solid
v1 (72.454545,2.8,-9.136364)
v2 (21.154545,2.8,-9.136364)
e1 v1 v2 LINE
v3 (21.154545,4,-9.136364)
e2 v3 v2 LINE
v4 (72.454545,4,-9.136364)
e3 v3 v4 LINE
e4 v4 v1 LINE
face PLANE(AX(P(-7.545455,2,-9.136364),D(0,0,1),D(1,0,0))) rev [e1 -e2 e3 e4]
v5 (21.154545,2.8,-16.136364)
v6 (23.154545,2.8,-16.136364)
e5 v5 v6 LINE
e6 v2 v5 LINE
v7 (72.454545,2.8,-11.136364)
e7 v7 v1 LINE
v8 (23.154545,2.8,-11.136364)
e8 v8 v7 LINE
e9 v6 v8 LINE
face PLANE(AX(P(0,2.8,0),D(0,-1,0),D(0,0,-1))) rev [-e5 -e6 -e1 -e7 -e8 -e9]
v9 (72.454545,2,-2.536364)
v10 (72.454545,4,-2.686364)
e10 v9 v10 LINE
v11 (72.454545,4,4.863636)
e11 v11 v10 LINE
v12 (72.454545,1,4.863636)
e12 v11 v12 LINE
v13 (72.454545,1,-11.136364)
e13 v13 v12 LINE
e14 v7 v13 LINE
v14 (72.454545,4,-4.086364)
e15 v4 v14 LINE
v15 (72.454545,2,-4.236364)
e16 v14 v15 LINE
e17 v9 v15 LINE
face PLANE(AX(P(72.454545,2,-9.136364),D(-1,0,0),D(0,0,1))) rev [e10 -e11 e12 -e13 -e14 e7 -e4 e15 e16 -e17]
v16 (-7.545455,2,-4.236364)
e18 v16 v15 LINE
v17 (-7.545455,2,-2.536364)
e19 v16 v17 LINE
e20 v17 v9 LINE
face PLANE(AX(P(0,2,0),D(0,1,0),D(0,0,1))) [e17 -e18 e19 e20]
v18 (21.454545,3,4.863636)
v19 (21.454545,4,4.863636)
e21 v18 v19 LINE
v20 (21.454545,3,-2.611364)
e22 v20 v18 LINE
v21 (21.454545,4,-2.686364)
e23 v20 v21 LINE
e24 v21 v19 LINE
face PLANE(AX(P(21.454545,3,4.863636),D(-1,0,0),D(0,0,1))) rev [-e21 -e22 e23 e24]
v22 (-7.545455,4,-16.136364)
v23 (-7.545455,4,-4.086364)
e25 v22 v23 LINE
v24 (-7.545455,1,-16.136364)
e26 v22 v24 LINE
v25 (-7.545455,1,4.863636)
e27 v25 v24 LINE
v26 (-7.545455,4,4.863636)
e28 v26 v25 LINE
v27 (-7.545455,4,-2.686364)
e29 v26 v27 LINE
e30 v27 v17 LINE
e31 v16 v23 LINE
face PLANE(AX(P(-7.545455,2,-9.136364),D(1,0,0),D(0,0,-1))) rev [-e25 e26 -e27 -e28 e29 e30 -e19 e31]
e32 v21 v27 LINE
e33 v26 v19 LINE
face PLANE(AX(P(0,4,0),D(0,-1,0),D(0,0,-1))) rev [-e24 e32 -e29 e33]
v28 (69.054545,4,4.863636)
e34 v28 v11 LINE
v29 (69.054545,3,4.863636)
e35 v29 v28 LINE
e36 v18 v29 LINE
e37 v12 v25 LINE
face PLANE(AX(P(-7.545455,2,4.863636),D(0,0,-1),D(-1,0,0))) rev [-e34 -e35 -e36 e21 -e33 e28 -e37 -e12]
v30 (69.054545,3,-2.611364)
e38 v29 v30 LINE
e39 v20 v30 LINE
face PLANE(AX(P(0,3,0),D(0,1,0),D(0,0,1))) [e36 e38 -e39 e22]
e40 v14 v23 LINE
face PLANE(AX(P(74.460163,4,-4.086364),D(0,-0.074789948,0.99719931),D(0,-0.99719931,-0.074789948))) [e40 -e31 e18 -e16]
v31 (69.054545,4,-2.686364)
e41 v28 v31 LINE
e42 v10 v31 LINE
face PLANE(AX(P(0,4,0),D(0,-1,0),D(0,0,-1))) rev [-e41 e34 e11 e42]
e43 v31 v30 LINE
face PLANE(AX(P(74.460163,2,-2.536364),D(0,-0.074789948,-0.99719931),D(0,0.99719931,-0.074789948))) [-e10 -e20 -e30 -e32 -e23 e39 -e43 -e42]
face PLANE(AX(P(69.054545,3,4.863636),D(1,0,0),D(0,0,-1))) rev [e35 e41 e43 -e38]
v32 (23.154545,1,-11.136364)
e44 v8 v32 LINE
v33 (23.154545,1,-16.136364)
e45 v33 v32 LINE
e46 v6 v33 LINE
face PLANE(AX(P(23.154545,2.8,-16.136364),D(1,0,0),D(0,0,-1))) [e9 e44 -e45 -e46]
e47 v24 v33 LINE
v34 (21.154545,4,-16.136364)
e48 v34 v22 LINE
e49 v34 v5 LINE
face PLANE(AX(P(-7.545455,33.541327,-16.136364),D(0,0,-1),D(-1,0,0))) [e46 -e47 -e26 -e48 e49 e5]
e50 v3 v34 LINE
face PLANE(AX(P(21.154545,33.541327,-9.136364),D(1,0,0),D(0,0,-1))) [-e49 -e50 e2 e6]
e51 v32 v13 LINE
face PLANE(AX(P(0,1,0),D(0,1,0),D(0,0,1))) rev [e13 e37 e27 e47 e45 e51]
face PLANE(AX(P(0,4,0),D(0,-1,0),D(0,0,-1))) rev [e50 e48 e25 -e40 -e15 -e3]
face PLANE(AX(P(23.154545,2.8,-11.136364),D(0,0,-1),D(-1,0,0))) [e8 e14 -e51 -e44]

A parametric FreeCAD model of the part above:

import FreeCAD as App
import Part
import Sketcher
from FreeCAD import Vector
Q = App.Units.Quantity

doc = App.newDocument("Part")
params = doc.addObject("Spreadsheet::Sheet", "Params")
for row, (alias, value) in enumerate([
    ("sketch1_width", "80 mm"),
    ("sketch1_height", "14 mm"),
    ("pad1_length", "2 mm"),
    ("sketch2_width", "80 mm"),
    ("sketch2_height", "7.4 mm"),
    ("sketch2_height2", "4.9 mm"),
    ("pad2_length", "2 mm"),
    ("sketch3_height", "7 mm"),
    ("sketch3_width", "28.7 mm"),
    ("pad3_length", "4 mm"),
    ("sketch4_width", "2 mm"),
    ("sketch4_height", "0.15 mm"),
    ("pad4_length", "80 mm"),
    ("sketch5_width", "80 mm"),
    ("sketch5_height", "21 mm"),
    ("sketch5_height2", "7 mm"),
    ("sketch5_width2", "28.7 mm"),
    ("pocket1_length", "1 mm"),
    ("sketch6_width", "2 mm"),
    ("sketch6_height", "7 mm"),
    ("sketch6_width2", "51.3 mm"),
    ("pad5_length", "1.8 mm"),
    ("sketch7_width", "47.6 mm"),
    ("sketch7_height", "7.55 mm"),
    ("pocket2_length", "1 mm"),
], start=1):
    params.set(f"A{row}", alias)
    params.set(f"B{row}", "=" + value)
    params.setAlias(f"B{row}", alias)

body = doc.addObject("PartDesign::Body", "Body")

# Sketch on XZ plane
sketch1 = body.newObject("Sketcher::SketchObject", "Sketch")
sketch1.AttachmentSupport = (doc.getObject("XZ_Plane"), [""])
sketch1.MapMode = "FlatFace"
sketch1.addGeometry([
    Part.LineSegment(Vector(-8, -9, 0), Vector(-8, 5, 0)),
    Part.LineSegment(Vector(-8, 5, 0), Vector(72, 5, 0)),
    Part.LineSegment(Vector(72, 5, 0), Vector(72, -9, 0)),
    Part.LineSegment(Vector(72, -9, 0), Vector(-8, -9, 0)),
], False)
sketch1.addConstraint([
    Sketcher.Constraint("Coincident", 0, 2, 1, 1),
    Sketcher.Constraint("Coincident", 1, 2, 2, 1),
    Sketcher.Constraint("Coincident", 2, 2, 3, 1),
    Sketcher.Constraint("Coincident", 3, 2, 0, 1),
    Sketcher.Constraint("Vertical", 0),
    Sketcher.Constraint("Horizontal", 1),
    Sketcher.Constraint("Vertical", 2),
    Sketcher.Constraint("Horizontal", 3),
    Sketcher.Constraint("DistanceX", 1, 1, 1, 2, Q("80 mm")),
    Sketcher.Constraint("DistanceY", 0, 1, 0, 2, Q("14 mm")),
    Sketcher.Constraint("DistanceX", 0, 2, -1, 1, Q("7.545455 mm")),
    Sketcher.Constraint("DistanceY", -1, 1, 0, 2, Q("4.863636 mm")),
])
sketch1.setExpression("Constraints[8]", "Params.sketch1_width")
sketch1.setExpression("Constraints[9]", "Params.sketch1_height")
pad1 = body.newObject("PartDesign::Pad", "Pad")
pad1.Profile = sketch1
pad1.setExpression("Length", "Params.pad1_length")
pad1.Reversed = True

# Sketch on XZ plane
sketch2 = body.newObject("Sketcher::SketchObject", "Sketch001")
sketch2.AttachmentSupport = (doc.getObject("XZ_Plane"), [""])
sketch2.MapMode = "FlatFace"
sketch2.AttachmentOffset = App.Placement(Vector(0, 0, -2), App.Rotation())
sketch2.addGeometry([
    Part.LineSegment(Vector(-7.5, -2.5, 0), Vector(-7.5, 4.9, 0)),  # 0
    Part.LineSegment(Vector(-7.5, 4.9, 0), Vector(72.5, 4.9, 0)),  # 1
    Part.LineSegment(Vector(72.5, 4.9, 0), Vector(72.5, -2.5, 0)),  # 2
    Part.LineSegment(Vector(72.5, -2.5, 0), Vector(-7.5, -2.5, 0)),  # 3
    Part.LineSegment(Vector(-7.5, -9.1, 0), Vector(-7.5, -4.2, 0)),  # 4
    Part.LineSegment(Vector(-7.5, -4.2, 0), Vector(72.5, -4.2, 0)),  # 5
    Part.LineSegment(Vector(72.5, -4.2, 0), Vector(72.5, -9.1, 0)),  # 6
    Part.LineSegment(Vector(72.5, -9.1, 0), Vector(-7.5, -9.1, 0)),  # 7
], False)
sketch2.addConstraint([
    Sketcher.Constraint("Coincident", 0, 2, 1, 1),
    Sketcher.Constraint("Coincident", 1, 2, 2, 1),
    Sketcher.Constraint("Coincident", 2, 2, 3, 1),
    Sketcher.Constraint("Coincident", 3, 2, 0, 1),
    Sketcher.Constraint("Coincident", 4, 2, 5, 1),
    Sketcher.Constraint("Coincident", 5, 2, 6, 1),
    Sketcher.Constraint("Coincident", 6, 2, 7, 1),
    Sketcher.Constraint("Coincident", 7, 2, 4, 1),
    Sketcher.Constraint("Vertical", 0),
    Sketcher.Constraint("Horizontal", 1),
    Sketcher.Constraint("Vertical", 2),
    Sketcher.Constraint("Horizontal", 3),
    Sketcher.Constraint("Vertical", 4),
    Sketcher.Constraint("Horizontal", 5),
    Sketcher.Constraint("Vertical", 6),
    Sketcher.Constraint("Horizontal", 7),
    Sketcher.Constraint("Vertical", 3, 2, 4, 2),
    Sketcher.Constraint("Vertical", 2, 2, 5, 2),
    Sketcher.Constraint("DistanceX", 1, 1, 1, 2, Q("80 mm")),
    Sketcher.Constraint("DistanceY", 0, 1, 0, 2, Q("7.4 mm")),
    Sketcher.Constraint("DistanceY", 4, 1, 4, 2, Q("4.9 mm")),
    Sketcher.Constraint("DistanceY", 6, 2, 1, 2, Q("14 mm")),
    Sketcher.Constraint("DistanceX", 0, 2, -1, 1, Q("7.545455 mm")),
    Sketcher.Constraint("DistanceY", -1, 1, 0, 2, Q("4.863636 mm")),
])
sketch2.setExpression("Constraints[18]", "Params.sketch2_width")
sketch2.setExpression("Constraints[19]", "Params.sketch2_height")
sketch2.setExpression("Constraints[20]", "Params.sketch2_height2")
pad2 = body.newObject("PartDesign::Pad", "Pad001")
pad2.Profile = sketch2
pad2.setExpression("Length", "Params.pad2_length")
pad2.Reversed = True

# Sketch on XZ plane
sketch3 = body.newObject("Sketcher::SketchObject", "Sketch002")
sketch3.AttachmentSupport = (doc.getObject("XZ_Plane"), [""])
sketch3.MapMode = "FlatFace"
sketch3.addGeometry([
    Part.LineSegment(Vector(-8, -9, 0), Vector(-8, -16, 0)),
    Part.LineSegment(Vector(-8, -16, 0), Vector(21, -16, 0)),
    Part.LineSegment(Vector(21, -16, 0), Vector(21, -9, 0)),
    Part.LineSegment(Vector(21, -9, 0), Vector(-8, -9, 0)),
], False)
sketch3.addConstraint([
    Sketcher.Constraint("Coincident", 0, 2, 1, 1),
    Sketcher.Constraint("Coincident", 1, 2, 2, 1),
    Sketcher.Constraint("Coincident", 2, 2, 3, 1),
    Sketcher.Constraint("Coincident", 3, 2, 0, 1),
    Sketcher.Constraint("Vertical", 0),
    Sketcher.Constraint("Horizontal", 1),
    Sketcher.Constraint("Vertical", 2),
    Sketcher.Constraint("Horizontal", 3),
    Sketcher.Constraint("DistanceY", 0, 2, 0, 1, Q("7 mm")),
    Sketcher.Constraint("DistanceX", 1, 1, 1, 2, Q("28.7 mm")),
    Sketcher.Constraint("DistanceX", 0, 2, -1, 1, Q("7.545455 mm")),
    Sketcher.Constraint("DistanceY", 0, 2, -1, 1, Q("16.136364 mm")),
])
sketch3.setExpression("Constraints[8]", "Params.sketch3_height")
sketch3.setExpression("Constraints[9]", "Params.sketch3_width")
pad3 = body.newObject("PartDesign::Pad", "Pad002")
pad3.Profile = sketch3
pad3.setExpression("Length", "Params.pad3_length")
pad3.Reversed = True

# Sketch on YZ plane
sketch4 = body.newObject("Sketcher::SketchObject", "Sketch003")
sketch4.AttachmentSupport = (doc.getObject("YZ_Plane"), [""])
sketch4.MapMode = "FlatFace"
sketch4.AttachmentOffset = App.Placement(Vector(0, 0, -7.545455), App.Rotation())
sketch4.addGeometry([
    Part.LineSegment(Vector(4, -2.69, 0), Vector(2, -2.54, 0)),  # 0
    Part.LineSegment(Vector(2, -2.54, 0), Vector(4, -2.54, 0)),  # 1
    Part.LineSegment(Vector(4, -2.54, 0), Vector(4, -2.69, 0)),  # 2
    Part.LineSegment(Vector(4, -4.24, 0), Vector(2, -4.24, 0)),  # 3
    Part.LineSegment(Vector(2, -4.24, 0), Vector(4, -4.09, 0)),  # 4
    Part.LineSegment(Vector(4, -4.09, 0), Vector(4, -4.24, 0)),  # 5
], False)
sketch4.addConstraint([
    Sketcher.Constraint("Coincident", 0, 2, 1, 1),
    Sketcher.Constraint("Coincident", 1, 2, 2, 1),
    Sketcher.Constraint("Coincident", 2, 2, 0, 1),
    Sketcher.Constraint("Coincident", 3, 2, 4, 1),
    Sketcher.Constraint("Coincident", 4, 2, 5, 1),
    Sketcher.Constraint("Coincident", 5, 2, 3, 1),
    Sketcher.Constraint("Horizontal", 1),
    Sketcher.Constraint("Vertical", 2),
    Sketcher.Constraint("Horizontal", 3),
    Sketcher.Constraint("Vertical", 5),
    Sketcher.Constraint("Vertical", 0, 2, 3, 2),
    Sketcher.Constraint("Vertical", 2, 2, 4, 2),
    Sketcher.Constraint("Equal", 2, 5),
    Sketcher.Constraint("DistanceX", 1, 1, 1, 2, Q("2 mm")),
    Sketcher.Constraint("DistanceX", -1, 1, 0, 2, Q("2 mm")),
    Sketcher.Constraint("DistanceY", 2, 2, 2, 1, Q("0.15 mm")),
    Sketcher.Constraint("DistanceY", 3, 2, 0, 2, Q("1.7 mm")),
    Sketcher.Constraint("DistanceY", 0, 2, -1, 1, Q("2.536364 mm")),
])
sketch4.setExpression("Constraints[13]", "Params.sketch4_width")
sketch4.setExpression("Constraints[15]", "Params.sketch4_height")
pad4 = body.newObject("PartDesign::Pad", "Pad003")
pad4.Profile = sketch4
pad4.setExpression("Length", "Params.pad4_length")

# Sketch on XZ plane
sketch5 = body.newObject("Sketcher::SketchObject", "Sketch004")
sketch5.AttachmentSupport = (doc.getObject("XZ_Plane"), [""])
sketch5.MapMode = "FlatFace"
sketch5.addGeometry([
    Part.LineSegment(Vector(72, 5, 0), Vector(-8, 5, 0)),  # 0
    Part.LineSegment(Vector(-8, 5, 0), Vector(-8, -16, 0)),  # 1
    Part.LineSegment(Vector(-8, -16, 0), Vector(21, -16, 0)),  # 2
    Part.LineSegment(Vector(21, -16, 0), Vector(21, -9, 0)),  # 3
    Part.LineSegment(Vector(21, -9, 0), Vector(72, -9, 0)),  # 4
    Part.LineSegment(Vector(72, -9, 0), Vector(72, 5, 0)),  # 5
], False)
sketch5.addConstraint([
    Sketcher.Constraint("Coincident", 0, 2, 1, 1),
    Sketcher.Constraint("Coincident", 1, 2, 2, 1),
    Sketcher.Constraint("Coincident", 2, 2, 3, 1),
    Sketcher.Constraint("Coincident", 3, 2, 4, 1),
    Sketcher.Constraint("Coincident", 4, 2, 5, 1),
    Sketcher.Constraint("Coincident", 5, 2, 0, 1),
    Sketcher.Constraint("Horizontal", 0),
    Sketcher.Constraint("Vertical", 1),
    Sketcher.Constraint("Horizontal", 2),
    Sketcher.Constraint("Vertical", 3),
    Sketcher.Constraint("Horizontal", 4),
    Sketcher.Constraint("Vertical", 5),
    Sketcher.Constraint("DistanceX", 0, 2, 0, 1, Q("80 mm")),
    Sketcher.Constraint("DistanceY", 1, 2, 1, 1, Q("21 mm")),
    Sketcher.Constraint("DistanceY", 3, 1, 3, 2, Q("7 mm")),
    Sketcher.Constraint("DistanceX", 2, 1, 2, 2, Q("28.7 mm")),
    Sketcher.Constraint("DistanceX", 0, 2, -1, 1, Q("7.545455 mm")),
    Sketcher.Constraint("DistanceY", -1, 1, 0, 2, Q("4.863636 mm")),
])
sketch5.setExpression("Constraints[12]", "Params.sketch5_width")
sketch5.setExpression("Constraints[13]", "Params.sketch5_height")
sketch5.setExpression("Constraints[14]", "Params.sketch5_height2")
sketch5.setExpression("Constraints[15]", "Params.sketch5_width2")
pocket1 = body.newObject("PartDesign::Pocket", "Pocket")
pocket1.Profile = sketch5
pocket1.setExpression("Length", "Params.pocket1_length")

# Sketch on XZ plane
sketch6 = body.newObject("Sketcher::SketchObject", "Sketch005")
sketch6.AttachmentSupport = (doc.getObject("XZ_Plane"), [""])
sketch6.MapMode = "FlatFace"
sketch6.AttachmentOffset = App.Placement(Vector(0, 0, -1), App.Rotation())
sketch6.addGeometry([
    Part.LineSegment(Vector(72.5, -9.1, 0), Vector(21.2, -9.1, 0)),  # 0
    Part.LineSegment(Vector(21.2, -9.1, 0), Vector(21.2, -16.1, 0)),  # 1
    Part.LineSegment(Vector(21.2, -16.1, 0), Vector(23.2, -16.1, 0)),  # 2
    Part.LineSegment(Vector(23.2, -16.1, 0), Vector(23.2, -11.1, 0)),  # 3
    Part.LineSegment(Vector(23.2, -11.1, 0), Vector(72.5, -11.1, 0)),  # 4
    Part.LineSegment(Vector(72.5, -11.1, 0), Vector(72.5, -9.1, 0)),  # 5
], False)
sketch6.addConstraint([
    Sketcher.Constraint("Coincident", 0, 2, 1, 1),
    Sketcher.Constraint("Coincident", 1, 2, 2, 1),
    Sketcher.Constraint("Coincident", 2, 2, 3, 1),
    Sketcher.Constraint("Coincident", 3, 2, 4, 1),
    Sketcher.Constraint("Coincident", 4, 2, 5, 1),
    Sketcher.Constraint("Coincident", 5, 2, 0, 1),
    Sketcher.Constraint("Horizontal", 0),
    Sketcher.Constraint("Vertical", 1),
    Sketcher.Constraint("Horizontal", 2),
    Sketcher.Constraint("Vertical", 3),
    Sketcher.Constraint("Horizontal", 4),
    Sketcher.Constraint("Vertical", 5),
    Sketcher.Constraint("Equal", 2, 5),
    Sketcher.Constraint("DistanceX", 2, 1, 2, 2, Q("2 mm")),
    Sketcher.Constraint("DistanceY", 1, 2, 1, 1, Q("7 mm")),
    Sketcher.Constraint("DistanceX", 0, 2, 0, 1, Q("51.3 mm")),
    Sketcher.Constraint("DistanceX", -1, 1, 0, 2, Q("21.154545 mm")),
    Sketcher.Constraint("DistanceY", 0, 2, -1, 1, Q("9.136364 mm")),
])
sketch6.setExpression("Constraints[13]", "Params.sketch6_width")
sketch6.setExpression("Constraints[14]", "Params.sketch6_height")
sketch6.setExpression("Constraints[15]", "Params.sketch6_width2")
pad5 = body.newObject("PartDesign::Pad", "Pad004")
pad5.Profile = sketch6
pad5.setExpression("Length", "Params.pad5_length")
pad5.Reversed = True

# Sketch on XZ plane
sketch7 = body.newObject("Sketcher::SketchObject", "Sketch006")
sketch7.AttachmentSupport = (doc.getObject("XZ_Plane"), [""])
sketch7.MapMode = "FlatFace"
sketch7.AttachmentOffset = App.Placement(Vector(0, 0, -4), App.Rotation())
sketch7.addGeometry([
    Part.LineSegment(Vector(21, -3, 0), Vector(21, 5, 0)),
    Part.LineSegment(Vector(21, 5, 0), Vector(69, 5, 0)),
    Part.LineSegment(Vector(69, 5, 0), Vector(69, -3, 0)),
    Part.LineSegment(Vector(69, -3, 0), Vector(21, -3, 0)),
], False)
sketch7.addConstraint([
    Sketcher.Constraint("Coincident", 0, 2, 1, 1),
    Sketcher.Constraint("Coincident", 1, 2, 2, 1),
    Sketcher.Constraint("Coincident", 2, 2, 3, 1),
    Sketcher.Constraint("Coincident", 3, 2, 0, 1),
    Sketcher.Constraint("Vertical", 0),
    Sketcher.Constraint("Horizontal", 1),
    Sketcher.Constraint("Vertical", 2),
    Sketcher.Constraint("Horizontal", 3),
    Sketcher.Constraint("DistanceX", 1, 1, 1, 2, Q("47.6 mm")),
    Sketcher.Constraint("DistanceY", 0, 1, 0, 2, Q("7.55 mm")),
    Sketcher.Constraint("DistanceX", -1, 1, 0, 2, Q("21.454545 mm")),
    Sketcher.Constraint("DistanceY", -1, 1, 0, 2, Q("4.863636 mm")),
])
sketch7.setExpression("Constraints[8]", "Params.sketch7_width")
sketch7.setExpression("Constraints[9]", "Params.sketch7_height")
pocket2 = body.newObject("PartDesign::Pocket", "Pocket001")
pocket2.Profile = sketch7
pocket2.setExpression("Length", "Params.pocket2_length")
pocket2.Reversed = True

doc.recompute()
